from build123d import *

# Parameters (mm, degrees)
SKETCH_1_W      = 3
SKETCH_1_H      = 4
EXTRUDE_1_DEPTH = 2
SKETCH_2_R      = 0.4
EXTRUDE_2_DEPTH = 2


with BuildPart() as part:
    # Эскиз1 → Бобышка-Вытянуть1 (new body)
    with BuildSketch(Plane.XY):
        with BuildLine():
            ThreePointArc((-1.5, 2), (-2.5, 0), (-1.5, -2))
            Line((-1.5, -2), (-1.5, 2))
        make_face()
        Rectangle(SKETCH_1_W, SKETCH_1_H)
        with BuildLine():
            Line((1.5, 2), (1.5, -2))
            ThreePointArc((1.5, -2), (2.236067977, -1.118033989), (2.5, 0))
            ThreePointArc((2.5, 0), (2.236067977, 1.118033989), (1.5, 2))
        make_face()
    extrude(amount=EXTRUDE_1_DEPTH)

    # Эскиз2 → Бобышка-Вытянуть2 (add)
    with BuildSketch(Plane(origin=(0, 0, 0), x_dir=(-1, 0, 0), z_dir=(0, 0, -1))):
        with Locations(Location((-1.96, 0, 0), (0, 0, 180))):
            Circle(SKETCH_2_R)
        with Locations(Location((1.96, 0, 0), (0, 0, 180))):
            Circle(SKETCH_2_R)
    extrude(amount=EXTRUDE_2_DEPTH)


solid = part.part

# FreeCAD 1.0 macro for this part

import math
import FreeCAD as App
import Part
import Sketcher
from FreeCAD import Vector
Q = App.Units.Quantity

doc = App.newDocument("Part")
body = doc.addObject("PartDesign::Body", "Body")

sketch1 = body.newObject("Sketcher::SketchObject", "Sketch")
sketch1.AttachmentSupport = (doc.getObject("XY_Plane"), [""])
sketch1.MapMode = "FlatFace"
sketch1.addGeometry([
    Part.ArcOfCircle(Part.Circle(Vector(0, 0, 0), Vector(0, 0, 1), 2.5), math.radians(127), math.radians(233)),
    Part.LineSegment(Vector(-1.5, -2, 0), Vector(1.5, -2, 0)),
    Part.ArcOfCircle(Part.Circle(Vector(0, 0, 0), Vector(0, 0, 1), 2.5), math.radians(-53), math.radians(0)),
    Part.ArcOfCircle(Part.Circle(Vector(0, 0, 0), Vector(0, 0, 1), 2.5), math.radians(0), math.radians(53)),
    Part.LineSegment(Vector(1.5, 2, 0), Vector(-1.5, 2, 0)),
], False)
sketch1.addConstraint([
    Sketcher.Constraint("Coincident", 0, 2, 1, 1),
    Sketcher.Constraint("Coincident", 1, 2, 2, 1),
    Sketcher.Constraint("Tangent", 2, 2, 3, 1),
    Sketcher.Constraint("Coincident", 3, 2, 4, 1),
    Sketcher.Constraint("Coincident", 4, 2, 0, 1),
    Sketcher.Constraint("Horizontal", 1),
    Sketcher.Constraint("Horizontal", 4),
    Sketcher.Constraint("Coincident", 0, 3, -1, 1),
    Sketcher.Constraint("Coincident", 2, 3, -1, 1),
    Sketcher.Constraint("Equal", 0, 2),
    Sketcher.Constraint("Equal", 2, 3),
    Sketcher.Constraint("PointOnObject", 2, 2, -1),
    Sketcher.Constraint("Vertical", 1, 2, 3, 2),
    Sketcher.Constraint("Radius", 0, Q("2.5 mm")),
    Sketcher.Constraint("DistanceX", 1, 1, 1, 2, Q("3 mm")),
])
pad1 = body.newObject("PartDesign::Pad", "Pad")
pad1.Profile = sketch1
pad1.Length = 2

sketch2 = body.newObject("Sketcher::SketchObject", "Sketch001")
sketch2.AttachmentSupport = (doc.getObject("XY_Plane"), [""])
sketch2.MapMode = "FlatFace"
sketch2.addGeometry([
    Part.Circle(Vector(1.96, 0, 0), Vector(0, 0, 1), 0.4),
    Part.Circle(Vector(-1.96, 0, 0), Vector(0, 0, 1), 0.4),
], False)
sketch2.addConstraint([
    Sketcher.Constraint("Equal", 0, 1),
    Sketcher.Constraint("Symmetric", 0, 3, 1, 3, -1, 1),
    Sketcher.Constraint("PointOnObject", 0, 3, -1),
    Sketcher.Constraint("Diameter", 0, Q("0.8 mm")),
    Sketcher.Constraint("DistanceX", -1, 1, 0, 3, Q("1.96 mm")),
])
pad2 = body.newObject("PartDesign::Pad", "Pad001")
pad2.Profile = sketch2
pad2.Length = 2
pad2.Reversed = True

doc.recompute()
